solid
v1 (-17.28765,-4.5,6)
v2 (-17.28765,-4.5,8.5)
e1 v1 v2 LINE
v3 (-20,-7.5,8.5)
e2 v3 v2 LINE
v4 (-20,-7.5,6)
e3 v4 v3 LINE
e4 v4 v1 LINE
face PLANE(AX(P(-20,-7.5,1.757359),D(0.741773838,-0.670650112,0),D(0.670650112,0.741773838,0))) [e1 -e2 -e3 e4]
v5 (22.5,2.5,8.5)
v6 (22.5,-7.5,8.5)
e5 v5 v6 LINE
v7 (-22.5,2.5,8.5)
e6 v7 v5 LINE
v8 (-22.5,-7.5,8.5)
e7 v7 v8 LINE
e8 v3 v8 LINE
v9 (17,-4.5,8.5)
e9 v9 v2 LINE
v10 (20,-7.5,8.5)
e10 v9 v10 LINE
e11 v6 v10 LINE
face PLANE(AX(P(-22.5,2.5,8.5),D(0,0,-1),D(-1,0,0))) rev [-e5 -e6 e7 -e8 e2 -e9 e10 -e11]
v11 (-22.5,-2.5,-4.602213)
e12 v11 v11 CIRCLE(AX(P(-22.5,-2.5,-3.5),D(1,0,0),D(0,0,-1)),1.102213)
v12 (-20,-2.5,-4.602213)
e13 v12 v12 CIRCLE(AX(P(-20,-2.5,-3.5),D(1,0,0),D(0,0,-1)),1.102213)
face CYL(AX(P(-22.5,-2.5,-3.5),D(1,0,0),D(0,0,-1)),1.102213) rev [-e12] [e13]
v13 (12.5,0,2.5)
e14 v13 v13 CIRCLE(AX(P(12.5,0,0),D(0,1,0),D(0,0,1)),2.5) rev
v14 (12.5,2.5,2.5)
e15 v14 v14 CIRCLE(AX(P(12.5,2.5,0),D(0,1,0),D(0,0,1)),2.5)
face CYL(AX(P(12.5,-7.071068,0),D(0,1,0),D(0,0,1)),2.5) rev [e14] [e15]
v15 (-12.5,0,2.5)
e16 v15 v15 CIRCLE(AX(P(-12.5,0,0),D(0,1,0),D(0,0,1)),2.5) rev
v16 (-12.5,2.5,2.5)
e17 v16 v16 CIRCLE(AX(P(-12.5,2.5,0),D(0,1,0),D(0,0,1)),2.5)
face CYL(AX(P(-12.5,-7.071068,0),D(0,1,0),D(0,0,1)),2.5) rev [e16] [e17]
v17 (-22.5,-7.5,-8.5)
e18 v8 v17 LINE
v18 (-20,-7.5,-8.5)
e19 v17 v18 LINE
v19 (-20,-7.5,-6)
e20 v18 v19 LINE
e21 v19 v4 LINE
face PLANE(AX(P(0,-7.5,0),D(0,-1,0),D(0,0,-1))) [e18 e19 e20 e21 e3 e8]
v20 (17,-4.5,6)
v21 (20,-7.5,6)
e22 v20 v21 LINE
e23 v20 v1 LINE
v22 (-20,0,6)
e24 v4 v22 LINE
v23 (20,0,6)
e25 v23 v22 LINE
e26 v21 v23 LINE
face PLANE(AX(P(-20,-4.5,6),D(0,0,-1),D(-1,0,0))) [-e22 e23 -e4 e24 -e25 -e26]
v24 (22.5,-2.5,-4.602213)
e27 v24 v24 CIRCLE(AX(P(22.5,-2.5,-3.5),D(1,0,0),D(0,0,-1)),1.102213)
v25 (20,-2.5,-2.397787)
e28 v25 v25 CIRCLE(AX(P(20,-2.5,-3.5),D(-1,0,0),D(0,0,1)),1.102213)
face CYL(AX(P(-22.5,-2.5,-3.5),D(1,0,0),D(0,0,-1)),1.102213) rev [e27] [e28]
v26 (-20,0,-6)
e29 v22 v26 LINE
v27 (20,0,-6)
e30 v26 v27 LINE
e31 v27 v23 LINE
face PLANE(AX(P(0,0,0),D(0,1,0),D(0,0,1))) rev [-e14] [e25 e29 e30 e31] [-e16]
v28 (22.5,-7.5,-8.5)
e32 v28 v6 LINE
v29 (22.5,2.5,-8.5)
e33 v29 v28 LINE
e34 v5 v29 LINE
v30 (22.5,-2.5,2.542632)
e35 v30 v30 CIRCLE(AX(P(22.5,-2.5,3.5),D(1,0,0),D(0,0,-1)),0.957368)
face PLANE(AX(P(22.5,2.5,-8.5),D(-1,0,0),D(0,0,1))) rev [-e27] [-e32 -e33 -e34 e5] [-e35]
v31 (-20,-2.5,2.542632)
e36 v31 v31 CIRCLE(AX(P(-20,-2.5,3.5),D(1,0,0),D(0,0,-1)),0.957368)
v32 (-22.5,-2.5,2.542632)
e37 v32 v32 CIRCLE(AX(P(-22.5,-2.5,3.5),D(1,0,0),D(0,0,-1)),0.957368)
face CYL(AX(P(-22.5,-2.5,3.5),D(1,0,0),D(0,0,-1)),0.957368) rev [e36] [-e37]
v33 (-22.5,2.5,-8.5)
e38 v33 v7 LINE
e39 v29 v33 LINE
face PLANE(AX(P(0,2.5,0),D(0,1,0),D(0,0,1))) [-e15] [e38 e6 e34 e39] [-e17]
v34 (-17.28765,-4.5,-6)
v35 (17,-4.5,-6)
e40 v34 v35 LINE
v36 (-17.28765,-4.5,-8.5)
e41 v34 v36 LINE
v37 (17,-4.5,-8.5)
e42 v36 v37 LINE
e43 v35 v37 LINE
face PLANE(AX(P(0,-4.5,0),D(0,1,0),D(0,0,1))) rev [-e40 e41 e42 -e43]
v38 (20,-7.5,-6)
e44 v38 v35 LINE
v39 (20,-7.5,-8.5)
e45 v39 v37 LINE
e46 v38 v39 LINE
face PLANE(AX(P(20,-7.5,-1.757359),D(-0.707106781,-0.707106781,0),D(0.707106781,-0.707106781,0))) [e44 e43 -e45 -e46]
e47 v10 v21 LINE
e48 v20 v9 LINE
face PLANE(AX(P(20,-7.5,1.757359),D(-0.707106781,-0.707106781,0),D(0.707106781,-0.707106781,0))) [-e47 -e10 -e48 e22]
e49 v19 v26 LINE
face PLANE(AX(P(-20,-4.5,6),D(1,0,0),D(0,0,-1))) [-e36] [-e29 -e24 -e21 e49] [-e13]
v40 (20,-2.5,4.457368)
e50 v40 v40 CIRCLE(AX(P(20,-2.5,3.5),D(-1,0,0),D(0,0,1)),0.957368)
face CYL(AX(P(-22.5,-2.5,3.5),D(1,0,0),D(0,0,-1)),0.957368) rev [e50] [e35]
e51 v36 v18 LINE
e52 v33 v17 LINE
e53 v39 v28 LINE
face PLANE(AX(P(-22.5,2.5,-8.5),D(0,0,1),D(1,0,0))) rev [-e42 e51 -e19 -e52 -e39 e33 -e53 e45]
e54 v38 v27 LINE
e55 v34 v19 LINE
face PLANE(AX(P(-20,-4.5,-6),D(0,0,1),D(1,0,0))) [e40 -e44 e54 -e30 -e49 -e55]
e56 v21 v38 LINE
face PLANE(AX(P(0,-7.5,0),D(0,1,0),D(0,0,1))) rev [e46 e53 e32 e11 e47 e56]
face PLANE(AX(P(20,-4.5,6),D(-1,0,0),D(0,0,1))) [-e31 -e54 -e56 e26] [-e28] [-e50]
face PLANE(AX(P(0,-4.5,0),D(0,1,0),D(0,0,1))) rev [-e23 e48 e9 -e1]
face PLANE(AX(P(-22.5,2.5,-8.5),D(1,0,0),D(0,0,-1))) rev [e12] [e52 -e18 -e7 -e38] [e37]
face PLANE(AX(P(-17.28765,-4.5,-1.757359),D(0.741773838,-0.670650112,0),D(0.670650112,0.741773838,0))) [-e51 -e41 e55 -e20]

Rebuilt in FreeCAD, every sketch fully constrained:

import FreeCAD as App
import Part
import Sketcher


def add_polygon(sketch, points):
    """Adds a closed chain of lines whose ends are joined by coincident constraints."""
    first, n = sketch.GeometryCount, len(points)
    for a, b in zip(points, points[1:] + points[:1]):
        sketch.addGeometry(Part.LineSegment(App.Vector(*a, 0), App.Vector(*b, 0)), False)
    for i in range(n):
        sketch.addConstraint(Sketcher.Constraint("Coincident", first + i, 2, first + (i + 1) % n, 1))

doc = App.newDocument("Part")
body = doc.addObject("PartDesign::Body", "Body")

sketch1 = body.newObject("Sketcher::SketchObject", "Sketch")
sketch1.AttachmentSupport = (doc.getObject("XZ_Plane"), [""])
sketch1.MapMode = "FlatFace"
add_polygon(sketch1, [(-22, -8), (-22, 8), (22, 8), (22, -8)])
sketch1.addConstraint([
    Sketcher.Constraint("Vertical", 0),
    Sketcher.Constraint("Horizontal", 1),
    Sketcher.Constraint("Vertical", 2),
    Sketcher.Constraint("Horizontal", 3),
    Sketcher.Constraint("Symmetric", 0, 2, 2, 2, -1, 1),
    Sketcher.Constraint("DistanceX", 1, 1, 1, 2, 45.0),
    Sketcher.Constraint("DistanceY", 0, 1, 0, 2, 17.0),
])
pad1 = body.newObject("PartDesign::Pad", "Pad")
pad1.Profile = sketch1
pad1.Length = 2.5
pad1.Reversed = True

sketch2 = body.newObject("Sketcher::SketchObject", "Sketch001")
sketch2.AttachmentSupport = (doc.getObject("XZ_Plane"), [""])
sketch2.MapMode = "FlatFace"
add_polygon(sketch2, [(-22, 8), (-22, -8), (22, -8), (22, 8)])
add_polygon(sketch2, [(20, -6), (-20, -6), (-20, 6), (20, 6)])
sketch2.addConstraint([
    Sketcher.Constraint("Vertical", 0),
    Sketcher.Constraint("Horizontal", 1),
    Sketcher.Constraint("Vertical", 2),
    Sketcher.Constraint("Horizontal", 3),
    Sketcher.Constraint("Horizontal", 4),
    Sketcher.Constraint("Vertical", 5),
    Sketcher.Constraint("Horizontal", 6),
    Sketcher.Constraint("Vertical", 7),
    Sketcher.Constraint("Symmetric", 0, 2, 2, 2, -1, 1),
    Sketcher.Constraint("Symmetric", 4, 2, 6, 2, -1, 1),
    Sketcher.Constraint("DistanceX", 1, 1, 1, 2, 45.0),
    Sketcher.Constraint("DistanceX", 4, 2, 4, 1, 40.0),
    Sketcher.Constraint("DistanceY", 0, 2, 0, 1, 17.0),
    Sketcher.Constraint("DistanceY", 5, 1, 5, 2, 12.0),
])
pad2 = body.newObject("PartDesign::Pad", "Pad001")
pad2.Profile = sketch2
pad2.Length = 4.5

sketch3 = body.newObject("Sketcher::SketchObject", "Sketch002")
sketch3.AttachmentSupport = (doc.getObject("YZ_Plane"), [""])
sketch3.MapMode = "FlatFace"
sketch3.AttachmentOffset = App.Placement(App.Vector(0, 0, 22.5), App.Rotation())
sketch3.addGeometry([
    Part.Circle(App.Vector(-2.5, 3.5, 0), App.Vector(0, 0, 1), 1),
    Part.Circle(App.Vector(-2.5, -3.5, 0), App.Vector(0, 0, 1), 1.1),
], False)
sketch3.addConstraint([
    Sketcher.Constraint("Symmetric", 0, 3, 1, 3, -1),
    Sketcher.Constraint("DistanceY", 1, 3, 0, 3, 7.0),
    Sketcher.Constraint("DistanceX", 0, 3, -1, 1, 2.5),
    Sketcher.Constraint("Diameter", 0, 1.914736),
    Sketcher.Constraint("Diameter", 1, 2.204426),
])
pocket1 = body.newObject("PartDesign::Pocket", "Pocket")
pocket1.Profile = sketch3
pocket1.Type = "ThroughAll"

sketch4 = body.newObject("Sketcher::SketchObject", "Sketch003")
sketch4.AttachmentSupport = (doc.getObject("XZ_Plane"), [""])
sketch4.MapMode = "FlatFace"
sketch4.AttachmentOffset = App.Placement(App.Vector(0, 0, 4.5), App.Rotation())
add_polygon(sketch4, [(-22.5, 8.5), (-22.5, -8.5), (-20, -8.5), (-20, 8.5)])
add_polygon(sketch4, [(20, 8.5), (20, -8.5), (22.5, -8.5), (22.5, 8.5)])
sketch4.addConstraint([
    Sketcher.Constraint("Vertical", 0),
    Sketcher.Constraint("Horizontal", 1),
    Sketcher.Constraint("Vertical", 2),
    Sketcher.Constraint("Horizontal", 3),
    Sketcher.Constraint("Vertical", 4),
    Sketcher.Constraint("Horizontal", 5),
    Sketcher.Constraint("Vertical", 6),
    Sketcher.Constraint("Horizontal", 7),
    Sketcher.Constraint("Symmetric", 2, 2, 4, 2, -1, 1),
    Sketcher.Constraint("Symmetric", 0, 2, 6, 2, -1, 1),
    Sketcher.Constraint("Horizontal", 1, 2, 4, 2),
    Sketcher.Constraint("DistanceY", 0, 2, 0, 1, 17.0),
    Sketcher.Constraint("DistanceX", 1, 1, 1, 2, 2.5),
    Sketcher.Constraint("DistanceX", 1, 2, -1, 1, 20.0),
])
pad3 = body.newObject("PartDesign::Pad", "Pad002")
pad3.Profile = sketch4
pad3.Length = 3

sketch5 = body.newObject("Sketcher::SketchObject", "Sketch004")
sketch5.AttachmentSupport = (doc.getObject("XY_Plane"), [""])
sketch5.MapMode = "FlatFace"
sketch5.AttachmentOffset = App.Placement(App.Vector(0, 0, 6), App.Rotation())
add_polygon(sketch5, [(20, -7.5), (20, -4.5), (17, -4.5)])
add_polygon(sketch5, [(-20, -4.5), (-20, -7.5), (-17.3, -4.5)])
sketch5.addConstraint([
    Sketcher.Constraint("Vertical", 0),
    Sketcher.Constraint("Horizontal", 1),
    Sketcher.Constraint("Vertical", 3),
    Sketcher.Constraint("Horizontal", 5),
    Sketcher.Constraint("Symmetric", 2, 2, 3, 2, -2),
    Sketcher.Constraint("Horizontal", 1, 2, 4, 2),
    Sketcher.Constraint("Equal", 1, 0),
    Sketcher.Constraint("DistanceX", 1, 2, 1, 1, 3.0),
    Sketcher.Constraint("DistanceX", -1, 1, 0, 2, 20.0),
    Sketcher.Constraint("DistanceY", 0, 2, -1, 1, 4.5),
    Sketcher.Constraint("DistanceX", 5, 2, 5, 1, 2.71235),
])
pad4 = body.newObject("PartDesign::Pad", "Pad003")
pad4.Profile = sketch5
pad4.Length = 2.5

sketch6 = body.newObject("Sketcher::SketchObject", "Sketch005")
sketch6.AttachmentSupport = (doc.getObject("XY_Plane"), [""])
sketch6.MapMode = "FlatFace"
sketch6.AttachmentOffset = App.Placement(App.Vector(0, 0, -8.5), App.Rotation())
add_polygon(sketch6, [(-20, -4.5), (-17.3, -4.5), (-20, -7.5)])
add_polygon(sketch6, [(17, -4.5), (20, -4.5), (20, -7.5)])
sketch6.addConstraint([
    Sketcher.Constraint("Horizontal", 0),
    Sketcher.Constraint("Vertical", 2),
    Sketcher.Constraint("Horizontal", 3),
    Sketcher.Constraint("Vertical", 4),
    Sketcher.Constraint("Symmetric", 2, 2, 3, 2, -2),
    Sketcher.Constraint("Horizontal", 1, 2, 4, 2),
    Sketcher.Constraint("Equal", 3, 2),
    Sketcher.Constraint("DistanceX", 3, 1, 3, 2, 3.0),
    Sketcher.Constraint("DistanceX", 1, 2, -1, 1, 20.0),
    Sketcher.Constraint("DistanceY", 0, 2, -1, 1, 4.5),
    Sketcher.Constraint("DistanceX", 0, 1, 0, 2, 2.71235),
])
pad5 = body.newObject("PartDesign::Pad", "Pad004")
pad5.Profile = sketch6
pad5.Length = 2.5

sketch7 = body.newObject("Sketcher::SketchObject", "Sketch006")
sketch7.AttachmentSupport = (doc.getObject("XZ_Plane"), [""])
sketch7.MapMode = "FlatFace"
sketch7.AttachmentOffset = App.Placement(App.Vector(0, 0, -2.5), App.Rotation())
sketch7.addGeometry([
    Part.Circle(App.Vector(-12.5, 0, 0), App.Vector(0, 0, 1), 2.5),
    Part.Circle(App.Vector(12.5, 0, 0), App.Vector(0, 0, 1), 2.5),
], False)
sketch7.addConstraint([
    Sketcher.Constraint("Equal", 0, 1),
    Sketcher.Constraint("Symmetric", 0, 3, 1, 3, -1, 1),
    Sketcher.Constraint("PointOnObject", 0, 3, -1),
    Sketcher.Constraint("Diameter", 0, 5.0),
    Sketcher.Constraint("DistanceX", 0, 3, 1, 3, 25.0),
])
pocket2 = body.newObject("PartDesign::Pocket", "Pocket001")
pocket2.Profile = sketch7
pocket2.Length = 2.5
pocket2.Reversed = True
doc.recompute()

mirrored = body.newObject("PartDesign::Mirrored", "Mirrored")
mirrored.Originals = [pocket2]
mirrored.MirrorPlane = (doc.getObject("XY_Plane"), [""])
body.Tip = mirrored

doc.recompute()
